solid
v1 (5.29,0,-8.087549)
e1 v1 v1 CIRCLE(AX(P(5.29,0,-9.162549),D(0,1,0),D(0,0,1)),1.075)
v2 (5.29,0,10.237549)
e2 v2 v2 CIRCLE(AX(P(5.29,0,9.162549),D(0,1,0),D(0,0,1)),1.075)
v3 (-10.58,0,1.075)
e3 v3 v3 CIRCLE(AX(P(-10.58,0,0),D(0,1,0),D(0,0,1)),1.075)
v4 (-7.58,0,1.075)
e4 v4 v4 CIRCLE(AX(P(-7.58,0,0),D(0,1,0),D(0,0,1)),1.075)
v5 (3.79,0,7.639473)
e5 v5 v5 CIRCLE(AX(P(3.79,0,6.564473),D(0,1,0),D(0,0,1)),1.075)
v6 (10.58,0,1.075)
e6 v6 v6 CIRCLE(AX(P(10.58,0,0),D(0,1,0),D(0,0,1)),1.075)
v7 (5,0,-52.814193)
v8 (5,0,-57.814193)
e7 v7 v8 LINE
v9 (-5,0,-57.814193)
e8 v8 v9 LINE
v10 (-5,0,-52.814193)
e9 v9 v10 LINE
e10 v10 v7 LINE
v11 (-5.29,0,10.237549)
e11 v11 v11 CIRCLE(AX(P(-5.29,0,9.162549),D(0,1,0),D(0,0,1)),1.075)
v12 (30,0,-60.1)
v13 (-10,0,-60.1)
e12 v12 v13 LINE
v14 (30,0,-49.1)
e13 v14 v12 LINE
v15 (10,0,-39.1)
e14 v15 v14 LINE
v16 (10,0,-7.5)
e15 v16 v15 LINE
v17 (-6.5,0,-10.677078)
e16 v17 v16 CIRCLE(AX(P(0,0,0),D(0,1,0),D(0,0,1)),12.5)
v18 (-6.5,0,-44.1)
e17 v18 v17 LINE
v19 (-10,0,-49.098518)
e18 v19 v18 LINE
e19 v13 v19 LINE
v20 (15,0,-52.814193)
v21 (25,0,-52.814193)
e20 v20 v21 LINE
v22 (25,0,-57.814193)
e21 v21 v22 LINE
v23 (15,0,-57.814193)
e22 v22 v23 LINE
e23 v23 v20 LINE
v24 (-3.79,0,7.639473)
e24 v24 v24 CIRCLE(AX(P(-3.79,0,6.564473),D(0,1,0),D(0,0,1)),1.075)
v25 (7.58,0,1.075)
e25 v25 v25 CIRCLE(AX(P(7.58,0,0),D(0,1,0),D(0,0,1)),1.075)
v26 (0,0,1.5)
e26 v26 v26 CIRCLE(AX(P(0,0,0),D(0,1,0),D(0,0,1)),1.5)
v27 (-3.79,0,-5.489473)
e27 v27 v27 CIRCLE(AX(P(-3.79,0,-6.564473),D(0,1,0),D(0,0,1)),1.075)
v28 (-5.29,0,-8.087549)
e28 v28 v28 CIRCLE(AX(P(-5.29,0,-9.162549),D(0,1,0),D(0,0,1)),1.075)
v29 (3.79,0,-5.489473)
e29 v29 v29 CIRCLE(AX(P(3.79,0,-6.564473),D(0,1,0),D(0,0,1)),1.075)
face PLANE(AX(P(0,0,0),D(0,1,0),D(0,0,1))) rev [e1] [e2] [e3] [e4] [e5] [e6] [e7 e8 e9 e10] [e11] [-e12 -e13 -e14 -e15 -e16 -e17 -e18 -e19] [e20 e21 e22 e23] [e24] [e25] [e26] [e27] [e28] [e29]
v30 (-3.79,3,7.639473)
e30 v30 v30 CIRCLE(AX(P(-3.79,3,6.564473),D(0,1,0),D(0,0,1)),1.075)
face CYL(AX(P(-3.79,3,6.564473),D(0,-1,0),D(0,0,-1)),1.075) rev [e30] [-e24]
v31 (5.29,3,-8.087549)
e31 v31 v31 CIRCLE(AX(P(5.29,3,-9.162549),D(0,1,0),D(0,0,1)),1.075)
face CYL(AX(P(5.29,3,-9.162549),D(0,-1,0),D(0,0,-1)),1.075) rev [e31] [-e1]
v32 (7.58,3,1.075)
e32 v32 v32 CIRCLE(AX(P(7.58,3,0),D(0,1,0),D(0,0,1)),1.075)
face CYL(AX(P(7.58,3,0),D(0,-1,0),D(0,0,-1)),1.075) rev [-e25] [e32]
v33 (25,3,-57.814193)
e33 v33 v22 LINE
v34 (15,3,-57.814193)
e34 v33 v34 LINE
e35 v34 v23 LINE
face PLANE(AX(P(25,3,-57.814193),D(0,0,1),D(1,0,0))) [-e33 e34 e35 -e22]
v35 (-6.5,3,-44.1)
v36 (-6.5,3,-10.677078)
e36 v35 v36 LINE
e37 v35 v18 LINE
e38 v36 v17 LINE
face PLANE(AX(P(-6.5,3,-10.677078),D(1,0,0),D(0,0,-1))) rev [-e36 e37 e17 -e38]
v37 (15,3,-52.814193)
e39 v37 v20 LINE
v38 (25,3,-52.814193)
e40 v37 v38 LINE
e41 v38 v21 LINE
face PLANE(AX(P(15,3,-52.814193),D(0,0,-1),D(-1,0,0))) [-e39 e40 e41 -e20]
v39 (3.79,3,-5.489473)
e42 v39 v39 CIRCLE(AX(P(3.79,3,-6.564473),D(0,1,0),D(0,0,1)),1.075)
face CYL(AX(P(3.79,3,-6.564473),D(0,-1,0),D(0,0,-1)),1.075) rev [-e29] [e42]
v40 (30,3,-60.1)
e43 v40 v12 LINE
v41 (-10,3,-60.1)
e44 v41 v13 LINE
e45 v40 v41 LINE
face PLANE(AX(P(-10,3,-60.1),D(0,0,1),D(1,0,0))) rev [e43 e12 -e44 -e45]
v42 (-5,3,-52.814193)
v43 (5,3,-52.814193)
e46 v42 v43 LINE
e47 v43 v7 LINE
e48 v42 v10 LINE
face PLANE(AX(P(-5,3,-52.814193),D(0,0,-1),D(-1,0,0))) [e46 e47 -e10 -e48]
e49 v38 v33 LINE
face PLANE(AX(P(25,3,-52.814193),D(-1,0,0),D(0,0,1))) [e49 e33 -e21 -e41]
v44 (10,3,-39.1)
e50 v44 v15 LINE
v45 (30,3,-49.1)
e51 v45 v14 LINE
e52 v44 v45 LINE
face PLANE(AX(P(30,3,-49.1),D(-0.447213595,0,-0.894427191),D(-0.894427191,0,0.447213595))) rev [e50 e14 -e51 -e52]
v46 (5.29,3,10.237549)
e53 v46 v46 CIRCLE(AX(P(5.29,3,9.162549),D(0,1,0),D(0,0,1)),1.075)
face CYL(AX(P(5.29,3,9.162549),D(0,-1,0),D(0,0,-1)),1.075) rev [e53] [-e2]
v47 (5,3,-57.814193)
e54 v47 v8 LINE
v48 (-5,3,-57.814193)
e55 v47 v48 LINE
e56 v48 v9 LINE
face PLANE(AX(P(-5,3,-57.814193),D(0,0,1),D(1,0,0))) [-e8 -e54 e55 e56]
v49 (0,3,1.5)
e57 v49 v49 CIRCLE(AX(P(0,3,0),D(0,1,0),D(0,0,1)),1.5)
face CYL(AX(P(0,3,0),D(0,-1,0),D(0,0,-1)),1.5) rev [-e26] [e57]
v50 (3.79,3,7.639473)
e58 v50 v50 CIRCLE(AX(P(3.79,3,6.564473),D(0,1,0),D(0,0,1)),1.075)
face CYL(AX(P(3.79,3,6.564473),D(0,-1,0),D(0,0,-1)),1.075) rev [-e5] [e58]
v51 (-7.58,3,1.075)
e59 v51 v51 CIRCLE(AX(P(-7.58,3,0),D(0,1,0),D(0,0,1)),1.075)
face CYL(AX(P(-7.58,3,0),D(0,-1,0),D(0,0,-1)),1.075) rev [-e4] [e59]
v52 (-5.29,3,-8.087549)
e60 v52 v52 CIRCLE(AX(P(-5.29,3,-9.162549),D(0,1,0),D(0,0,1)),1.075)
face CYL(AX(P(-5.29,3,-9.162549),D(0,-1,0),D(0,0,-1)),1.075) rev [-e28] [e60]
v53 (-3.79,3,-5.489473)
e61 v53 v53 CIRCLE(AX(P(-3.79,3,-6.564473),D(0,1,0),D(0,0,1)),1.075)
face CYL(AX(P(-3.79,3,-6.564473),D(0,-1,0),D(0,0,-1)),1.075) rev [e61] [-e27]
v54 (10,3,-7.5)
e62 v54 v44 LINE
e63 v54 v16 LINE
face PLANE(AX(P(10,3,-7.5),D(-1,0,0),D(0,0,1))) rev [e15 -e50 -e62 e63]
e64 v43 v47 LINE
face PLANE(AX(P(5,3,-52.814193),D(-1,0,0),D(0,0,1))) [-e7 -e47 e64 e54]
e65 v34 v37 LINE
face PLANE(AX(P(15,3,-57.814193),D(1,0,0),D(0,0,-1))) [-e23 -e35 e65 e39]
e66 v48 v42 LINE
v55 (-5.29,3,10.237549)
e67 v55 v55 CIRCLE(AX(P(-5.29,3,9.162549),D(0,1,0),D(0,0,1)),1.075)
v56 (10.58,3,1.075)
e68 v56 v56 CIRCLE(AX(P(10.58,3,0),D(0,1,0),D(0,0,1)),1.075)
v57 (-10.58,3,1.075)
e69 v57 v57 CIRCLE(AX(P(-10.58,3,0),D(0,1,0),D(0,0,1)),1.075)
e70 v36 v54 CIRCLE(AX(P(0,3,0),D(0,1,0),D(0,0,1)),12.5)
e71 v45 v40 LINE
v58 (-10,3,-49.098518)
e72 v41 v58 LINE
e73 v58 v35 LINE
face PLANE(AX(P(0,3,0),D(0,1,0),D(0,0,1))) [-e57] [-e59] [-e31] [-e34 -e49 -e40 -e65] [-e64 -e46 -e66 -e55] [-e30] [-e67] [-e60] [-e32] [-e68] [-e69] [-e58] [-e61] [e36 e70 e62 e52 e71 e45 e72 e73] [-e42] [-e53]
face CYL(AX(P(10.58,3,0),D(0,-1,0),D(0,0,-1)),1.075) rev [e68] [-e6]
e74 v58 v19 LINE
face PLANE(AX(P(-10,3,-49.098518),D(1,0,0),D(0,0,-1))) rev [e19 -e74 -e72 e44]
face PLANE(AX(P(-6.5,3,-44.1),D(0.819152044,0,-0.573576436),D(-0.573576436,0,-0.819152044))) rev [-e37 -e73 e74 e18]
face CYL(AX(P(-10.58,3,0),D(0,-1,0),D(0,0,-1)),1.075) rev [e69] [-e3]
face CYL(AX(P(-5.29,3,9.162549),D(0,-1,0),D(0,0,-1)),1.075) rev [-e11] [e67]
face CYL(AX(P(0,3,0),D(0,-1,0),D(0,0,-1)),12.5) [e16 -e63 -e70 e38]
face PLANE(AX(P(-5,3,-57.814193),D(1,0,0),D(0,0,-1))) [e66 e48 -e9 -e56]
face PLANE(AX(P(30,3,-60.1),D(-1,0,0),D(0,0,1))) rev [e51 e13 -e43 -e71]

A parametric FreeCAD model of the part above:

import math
import FreeCAD as App
import Part
import Sketcher
from FreeCAD import Vector
Q = App.Units.Quantity


def add_polygon(sketch, points):
    """Adds a closed chain of lines whose ends are joined by coincident constraints."""
    first, n = sketch.GeometryCount, len(points)
    for a, b in zip(points, points[1:] + points[:1]):
        sketch.addGeometry(Part.LineSegment(App.Vector(*a, 0), App.Vector(*b, 0)), False)
    for i in range(n):
        sketch.addConstraint(Sketcher.Constraint("Coincident", first + i, 2, first + (i + 1) % n, 1))

doc = App.newDocument("Part")
params = doc.addObject("Spreadsheet::Sheet", "Params")
for row, (alias, value) in enumerate([
    ("sketch1_diameter", "3 mm"),
    ("sketch1_radius", "12.5 mm"),
    ("sketch1_diameter2", "2.15 mm"),
    ("sketch1_width", "40 mm"),
    ("sketch1_width2", "10 mm"),
    ("pad1_length", "3 mm"),
], start=1):
    params.set(f"A{row}", alias)
    params.set(f"B{row}", "=" + value)
    params.setAlias(f"B{row}", alias)

body = doc.addObject("PartDesign::Body", "Body")

# Sketch on XZ plane
sketch1 = body.newObject("Sketcher::SketchObject", "Sketch")
sketch1.AttachmentSupport = (doc.getObject("XZ_Plane"), [""])
sketch1.MapMode = "FlatFace"
sketch1.addGeometry(Part.LineSegment(Vector(-6.5, -44.1, 0), Vector(-6.5, -10.7, 0)), False)  # 0
sketch1.addGeometry(Part.ArcOfCircle(Part.Circle(Vector(0, 0, 0), Vector(0, 0, 1), 12.5), math.radians(-37), math.radians(239)), False)  # 1
sketch1.addGeometry(Part.LineSegment(Vector(10, -7.5, 0), Vector(10, -39.1, 0)), False)  # 2
sketch1.addGeometry(Part.LineSegment(Vector(10, -39.1, 0), Vector(30, -49.1, 0)), False)  # 3
sketch1.addGeometry(Part.LineSegment(Vector(30, -49.1, 0), Vector(30, -60.1, 0)), False)  # 4
sketch1.addGeometry(Part.LineSegment(Vector(30, -60.1, 0), Vector(-10, -60.1, 0)), False)  # 5
sketch1.addGeometry(Part.LineSegment(Vector(-10, -60.1, 0), Vector(-10, -49.1, 0)), False)  # 6
sketch1.addGeometry(Part.LineSegment(Vector(-10, -49.1, 0), Vector(-6.5, -44.1, 0)), False)  # 7
sketch1.addGeometry(Part.Circle(Vector(10.6, 0, 0), Vector(0, 0, 1), 1.1), False)  # 8
sketch1.addGeometry(Part.Circle(Vector(7.6, 0, 0), Vector(0, 0, 1), 1.1), False)  # 9
sketch1.addGeometry(Part.Circle(Vector(5.3, 9.2, 0), Vector(0, 0, 1), 1.1), False)  # 10
sketch1.addGeometry(Part.Circle(Vector(3.8, 6.6, 0), Vector(0, 0, 1), 1.1), False)  # 11
sketch1.addGeometry(Part.Circle(Vector(3.8, -6.6, 0), Vector(0, 0, 1), 1.1), False)  # 12
sketch1.addGeometry(Part.Circle(Vector(0, 0, 0), Vector(0, 0, 1), 1.5), False)  # 13
sketch1.addGeometry(Part.Circle(Vector(-3.8, 6.6, 0), Vector(0, 0, 1), 1.1), False)  # 14
sketch1.addGeometry(Part.Circle(Vector(-5.3, 9.2, 0), Vector(0, 0, 1), 1.1), False)  # 15
sketch1.addGeometry(Part.Circle(Vector(-3.8, -6.6, 0), Vector(0, 0, 1), 1.1), False)  # 16
sketch1.addGeometry(Part.Circle(Vector(-7.6, 0, 0), Vector(0, 0, 1), 1.1), False)  # 17
sketch1.addGeometry(Part.Circle(Vector(-10.6, 0, 0), Vector(0, 0, 1), 1.1), False)  # 18
sketch1.addGeometry(Part.Circle(Vector(5.3, -9.2, 0), Vector(0, 0, 1), 1.1), False)  # 19
sketch1.addGeometry(Part.Circle(Vector(-5.3, -9.2, 0), Vector(0, 0, 1), 1.1), False)  # 20
add_polygon(sketch1, [(15, -52.8), (15, -57.8), (25, -57.8), (25, -52.8)])  # lines 21-24
add_polygon(sketch1, [(-5, -52.8), (-5, -57.8), (5, -57.8), (5, -52.8)])  # lines 25-28
sketch1.addConstraint([
    Sketcher.Constraint("Coincident", 0, 2, 1, 2),
    Sketcher.Constraint("Coincident", 1, 1, 2, 1),
    Sketcher.Constraint("Coincident", 2, 2, 3, 1),
    Sketcher.Constraint("Coincident", 3, 2, 4, 1),
    Sketcher.Constraint("Coincident", 4, 2, 5, 1),
    Sketcher.Constraint("Coincident", 5, 2, 6, 1),
    Sketcher.Constraint("Coincident", 6, 2, 7, 1),
    Sketcher.Constraint("Coincident", 7, 2, 0, 1),
    Sketcher.Constraint("Vertical", 0),
    Sketcher.Constraint("Vertical", 2),
    Sketcher.Constraint("Vertical", 4),
    Sketcher.Constraint("Horizontal", 5),
    Sketcher.Constraint("Vertical", 6),
    Sketcher.Constraint("Vertical", 21),
    Sketcher.Constraint("Horizontal", 22),
    Sketcher.Constraint("Vertical", 23),
    Sketcher.Constraint("Horizontal", 24),
    Sketcher.Constraint("Vertical", 25),
    Sketcher.Constraint("Horizontal", 26),
    Sketcher.Constraint("Vertical", 27),
    Sketcher.Constraint("Horizontal", 28),
    Sketcher.Constraint("Coincident", 1, 3, -1, 1),
    Sketcher.Constraint("Coincident", 13, 3, -1, 1),
    Sketcher.Constraint("Equal", 8, 9),
    Sketcher.Constraint("Equal", 9, 10),
    Sketcher.Constraint("Equal", 10, 11),
    Sketcher.Constraint("Equal", 11, 12),
    Sketcher.Constraint("Equal", 12, 14),
    Sketcher.Constraint("Equal", 14, 15),
    Sketcher.Constraint("Equal", 15, 16),
    Sketcher.Constraint("Equal", 16, 17),
    Sketcher.Constraint("Equal", 17, 18),
    Sketcher.Constraint("Equal", 18, 19),
    Sketcher.Constraint("Equal", 19, 20),
    Sketcher.Constraint("Symmetric", 12, 3, 14, 3, -1, 1),
    Sketcher.Constraint("Symmetric", 11, 3, 16, 3, -1, 1),
    Sketcher.Constraint("Symmetric", 9, 3, 17, 3, -1, 1),
    Sketcher.Constraint("Symmetric", 8, 3, 18, 3, -1, 1),
    Sketcher.Constraint("Symmetric", 15, 3, 19, 3, -1, 1),
    Sketcher.Constraint("Symmetric", 10, 3, 20, 3, -1, 1),
    Sketcher.Constraint("Symmetric", 11, 3, 14, 3, -2),
    Sketcher.Constraint("Symmetric", 10, 3, 15, 3, -2),
    Sketcher.Constraint("PointOnObject", 8, 3, -1),
    Sketcher.Constraint("PointOnObject", 9, 3, -1),
    Sketcher.Constraint("Horizontal", 22, 2, 25, 2),
    Sketcher.Constraint("Horizontal", 24, 2, 27, 2),
    Sketcher.Constraint("Equal", 24, 26),
    Sketcher.Constraint("Diameter", 13, 3.0),
    Sketcher.Constraint("Radius", 1, 12.5),
    Sketcher.Constraint("Diameter", 8, 2.15),
    Sketcher.Constraint("DistanceX", 5, 2, 5, 1, 40.0),
    Sketcher.Constraint("DistanceX", 22, 1, 22, 2, 10.0),
    Sketcher.Constraint("DistanceY", 4, 2, 4, 1, 11.0),
    Sketcher.Constraint("DistanceY", 21, 2, 21, 1, 5.0),
    Sketcher.Constraint("Angle", 7, Q("55 deg")),
    Sketcher.Constraint("DistanceY", 2, 2, 2, 1, 31.6),
    Sketcher.Constraint("DistanceX", -1, 1, 1, 1, 10.0),
    Sketcher.Constraint("DistanceX", -1, 1, 3, 2, 30.0),
    Sketcher.Constraint("DistanceX", -1, 1, 21, 2, 15.0),
    Sketcher.Constraint("DistanceX", 25, 2, -1, 1, 5.0),
    Sketcher.Constraint("DistanceX", 9, 3, 8, 3, 3.0),
    Sketcher.Constraint("DistanceY", 3, 2, 2, 2, 10.0),
    Sketcher.Constraint("DistanceY", 5, 2, 7, 2, 16.0),
    Sketcher.Constraint("DistanceX", 0, 2, -1, 1, 6.5),
    Sketcher.Constraint("DistanceX", 11, 3, 10, 3, 1.5),
    Sketcher.Constraint("DistanceX", -1, 1, 8, 3, 10.58),
    Sketcher.Constraint("DistanceX", -1, 1, 10, 3, 5.29),
    Sketcher.Constraint("DistanceY", -1, 1, 10, 3, 9.162549),
    Sketcher.Constraint("DistanceY", 12, 3, 10, 3, 15.727021),
    Sketcher.Constraint("DistanceY", 21, 2, -1, 1, 57.814193),
])
sketch1.setExpression("Constraints[55]", "Params.sketch1_diameter")
sketch1.setExpression("Constraints[56]", "Params.sketch1_radius")
sketch1.setExpression("Constraints[57]", "Params.sketch1_diameter2")
sketch1.setExpression("Constraints[58]", "Params.sketch1_width")
sketch1.setExpression("Constraints[59]", "Params.sketch1_width2")
pad1 = body.newObject("PartDesign::Pad", "Pad")
pad1.Profile = sketch1
pad1.setExpression("Length", "Params.pad1_length")
pad1.Reversed = True

doc.recompute()
